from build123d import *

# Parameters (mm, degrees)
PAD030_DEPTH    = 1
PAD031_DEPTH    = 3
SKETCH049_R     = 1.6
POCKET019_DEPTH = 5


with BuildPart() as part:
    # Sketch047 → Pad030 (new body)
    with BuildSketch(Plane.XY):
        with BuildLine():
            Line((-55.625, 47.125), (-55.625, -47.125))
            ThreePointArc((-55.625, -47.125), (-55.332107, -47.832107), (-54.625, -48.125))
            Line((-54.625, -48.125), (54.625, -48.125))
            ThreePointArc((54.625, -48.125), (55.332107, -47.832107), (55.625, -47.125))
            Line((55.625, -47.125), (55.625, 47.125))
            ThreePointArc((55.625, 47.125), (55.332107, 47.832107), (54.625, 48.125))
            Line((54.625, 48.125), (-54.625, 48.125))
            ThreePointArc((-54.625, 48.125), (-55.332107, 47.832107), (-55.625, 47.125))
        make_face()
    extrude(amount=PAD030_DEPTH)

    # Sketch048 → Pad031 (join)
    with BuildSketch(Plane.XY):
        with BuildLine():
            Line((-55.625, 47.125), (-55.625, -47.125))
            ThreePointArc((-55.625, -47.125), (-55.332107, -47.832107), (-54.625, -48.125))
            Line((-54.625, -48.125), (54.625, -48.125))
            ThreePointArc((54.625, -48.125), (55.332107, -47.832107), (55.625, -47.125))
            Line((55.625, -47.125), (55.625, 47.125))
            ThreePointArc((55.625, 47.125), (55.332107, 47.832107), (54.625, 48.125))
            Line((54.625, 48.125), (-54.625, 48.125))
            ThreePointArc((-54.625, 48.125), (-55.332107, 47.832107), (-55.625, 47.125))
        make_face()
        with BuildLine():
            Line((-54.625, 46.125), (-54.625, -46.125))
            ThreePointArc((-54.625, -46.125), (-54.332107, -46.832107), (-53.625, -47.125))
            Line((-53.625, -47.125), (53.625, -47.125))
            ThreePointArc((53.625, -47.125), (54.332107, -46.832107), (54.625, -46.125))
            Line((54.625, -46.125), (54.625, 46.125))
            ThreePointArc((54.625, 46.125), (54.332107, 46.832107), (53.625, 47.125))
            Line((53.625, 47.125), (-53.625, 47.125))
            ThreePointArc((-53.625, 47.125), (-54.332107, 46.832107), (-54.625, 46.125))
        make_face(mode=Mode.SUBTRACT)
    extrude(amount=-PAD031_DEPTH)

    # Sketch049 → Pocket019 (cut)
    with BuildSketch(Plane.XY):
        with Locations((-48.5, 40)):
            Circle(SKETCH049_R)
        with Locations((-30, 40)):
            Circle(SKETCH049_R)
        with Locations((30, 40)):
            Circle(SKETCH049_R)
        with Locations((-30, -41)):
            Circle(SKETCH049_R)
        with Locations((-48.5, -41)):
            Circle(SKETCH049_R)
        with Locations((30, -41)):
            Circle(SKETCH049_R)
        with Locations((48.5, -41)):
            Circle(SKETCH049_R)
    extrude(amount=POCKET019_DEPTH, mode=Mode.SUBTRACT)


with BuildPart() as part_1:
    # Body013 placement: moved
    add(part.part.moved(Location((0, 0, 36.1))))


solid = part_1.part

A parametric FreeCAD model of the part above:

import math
import FreeCAD as App
import Part
import Sketcher
from FreeCAD import Vector

doc = App.newDocument("Part")
body = doc.addObject("PartDesign::Body", "Body")

# Sketch on XY plane
sketch1 = body.newObject("Sketcher::SketchObject", "Sketch")
sketch1.AttachmentSupport = (doc.getObject("XY_Plane"), [""])
sketch1.MapMode = "FlatFace"
sketch1.addGeometry([
    Part.LineSegment(Vector(-55.6, 47.1, 0), Vector(-55.6, -47.1, 0)),  # 0
    Part.ArcOfCircle(Part.Circle(Vector(-54.6, -47.1, 0), Vector(0, 0, 1), 1), math.radians(180), math.radians(270)),  # 1
    Part.LineSegment(Vector(-54.6, -48.1, 0), Vector(54.6, -48.1, 0)),  # 2
    Part.ArcOfCircle(Part.Circle(Vector(54.6, -47.1, 0), Vector(0, 0, 1), 1), math.radians(-90), math.radians(0)),  # 3
    Part.LineSegment(Vector(55.6, -47.1, 0), Vector(55.6, 47.1, 0)),  # 4
    Part.ArcOfCircle(Part.Circle(Vector(54.6, 47.1, 0), Vector(0, 0, 1), 1), math.radians(0), math.radians(90)),  # 5
    Part.LineSegment(Vector(54.6, 48.1, 0), Vector(-54.6, 48.1, 0)),  # 6
    Part.ArcOfCircle(Part.Circle(Vector(-54.6, 47.1, 0), Vector(0, 0, 1), 1), math.radians(90), math.radians(180)),  # 7
], False)
sketch1.addConstraint([
    Sketcher.Constraint("Tangent", 0, 2, 1, 1),
    Sketcher.Constraint("Tangent", 1, 2, 2, 1),
    Sketcher.Constraint("Tangent", 2, 2, 3, 1),
    Sketcher.Constraint("Tangent", 3, 2, 4, 1),
    Sketcher.Constraint("Tangent", 4, 2, 5, 1),
    Sketcher.Constraint("Tangent", 5, 2, 6, 1),
    Sketcher.Constraint("Tangent", 6, 2, 7, 1),
    Sketcher.Constraint("Tangent", 7, 2, 0, 1),
    Sketcher.Constraint("Vertical", 0),
    Sketcher.Constraint("Horizontal", 2),
    Sketcher.Constraint("Vertical", 4),
    Sketcher.Constraint("Horizontal", 6),
    Sketcher.Constraint("Equal", 1, 3),
    Sketcher.Constraint("Equal", 3, 5),
    Sketcher.Constraint("Equal", 5, 7),
    Sketcher.Constraint("Symmetric", 1, 3, 5, 3, -1, 1),
    Sketcher.Constraint("Radius", 1, 0.999999),
    Sketcher.Constraint("DistanceX", 2, 1, 2, 2, 109.25),
    Sketcher.Constraint("DistanceY", 0, 2, 0, 1, 94.25),
])
pad1 = body.newObject("PartDesign::Pad", "Pad")
pad1.Profile = sketch1
pad1.Length = 1

# Sketch on XY plane
sketch2 = body.newObject("Sketcher::SketchObject", "Sketch001")
sketch2.AttachmentSupport = (doc.getObject("XY_Plane"), [""])
sketch2.MapMode = "FlatFace"
sketch2.addGeometry([
    Part.LineSegment(Vector(-55.6, 47.1, 0), Vector(-55.6, -47.1, 0)),  # 0
    Part.ArcOfCircle(Part.Circle(Vector(-54.6, -47.1, 0), Vector(0, 0, 1), 1), math.radians(180), math.radians(270)),  # 1
    Part.LineSegment(Vector(-54.6, -48.1, 0), Vector(54.6, -48.1, 0)),  # 2
    Part.ArcOfCircle(Part.Circle(Vector(54.6, -47.1, 0), Vector(0, 0, 1), 1), math.radians(-90), math.radians(0)),  # 3
    Part.LineSegment(Vector(55.6, -47.1, 0), Vector(55.6, 47.1, 0)),  # 4
    Part.ArcOfCircle(Part.Circle(Vector(54.6, 47.1, 0), Vector(0, 0, 1), 1), math.radians(0), math.radians(90)),  # 5
    Part.LineSegment(Vector(54.6, 48.1, 0), Vector(-54.6, 48.1, 0)),  # 6
    Part.ArcOfCircle(Part.Circle(Vector(-54.6, 47.1, 0), Vector(0, 0, 1), 1), math.radians(90), math.radians(180)),  # 7
    Part.LineSegment(Vector(-54.6, -46.1, 0), Vector(-54.6, 46.1, 0)),  # 8
    Part.ArcOfCircle(Part.Circle(Vector(-53.6, 46.1, 0), Vector(0, 0, 1), 1), math.radians(90), math.radians(180)),  # 9
    Part.LineSegment(Vector(-53.6, 47.1, 0), Vector(53.6, 47.1, 0)),  # 10
    Part.ArcOfCircle(Part.Circle(Vector(53.6, 46.1, 0), Vector(0, 0, 1), 1), math.radians(0), math.radians(90)),  # 11
    Part.LineSegment(Vector(54.6, 46.1, 0), Vector(54.6, -46.1, 0)),  # 12
    Part.ArcOfCircle(Part.Circle(Vector(53.6, -46.1, 0), Vector(0, 0, 1), 1), math.radians(-90), math.radians(0)),  # 13
    Part.LineSegment(Vector(53.6, -47.1, 0), Vector(-53.6, -47.1, 0)),  # 14
    Part.ArcOfCircle(Part.Circle(Vector(-53.6, -46.1, 0), Vector(0, 0, 1), 1), math.radians(180), math.radians(270)),  # 15
], False)
sketch2.addConstraint([
    Sketcher.Constraint("Tangent", 0, 2, 1, 1),
    Sketcher.Constraint("Tangent", 1, 2, 2, 1),
    Sketcher.Constraint("Tangent", 2, 2, 3, 1),
    Sketcher.Constraint("Tangent", 3, 2, 4, 1),
    Sketcher.Constraint("Tangent", 4, 2, 5, 1),
    Sketcher.Constraint("Tangent", 5, 2, 6, 1),
    Sketcher.Constraint("Tangent", 6, 2, 7, 1),
    Sketcher.Constraint("Tangent", 7, 2, 0, 1),
    Sketcher.Constraint("Tangent", 8, 2, 9, 2),
    Sketcher.Constraint("Tangent", 9, 1, 10, 1),
    Sketcher.Constraint("Tangent", 10, 2, 11, 2),
    Sketcher.Constraint("Tangent", 11, 1, 12, 1),
    Sketcher.Constraint("Tangent", 12, 2, 13, 2),
    Sketcher.Constraint("Tangent", 13, 1, 14, 1),
    Sketcher.Constraint("Tangent", 14, 2, 15, 2),
    Sketcher.Constraint("Tangent", 15, 1, 8, 1),
    Sketcher.Constraint("Vertical", 0),
    Sketcher.Constraint("Horizontal", 2),
    Sketcher.Constraint("Vertical", 4),
    Sketcher.Constraint("Horizontal", 6),
    Sketcher.Constraint("Vertical", 8),
    Sketcher.Constraint("Horizontal", 10),
    Sketcher.Constraint("Vertical", 12),
    Sketcher.Constraint("Horizontal", 14),
    Sketcher.Constraint("Equal", 1, 3),
    Sketcher.Constraint("Equal", 3, 5),
    Sketcher.Constraint("Equal", 5, 7),
    Sketcher.Constraint("Equal", 7, 9),
    Sketcher.Constraint("Equal", 9, 11),
    Sketcher.Constraint("Equal", 11, 13),
    Sketcher.Constraint("Equal", 13, 15),
    Sketcher.Constraint("Symmetric", 1, 3, 5, 3, -1, 1),
    Sketcher.Constraint("Symmetric", 9, 3, 13, 3, -1, 1),
    Sketcher.Constraint("Horizontal", 7, 2, 9, 1),
    Sketcher.Constraint("Vertical", 6, 2, 8, 2),
    Sketcher.Constraint("Radius", 1, 0.999999),
    Sketcher.Constraint("DistanceX", 2, 1, 2, 2, 109.25),
    Sketcher.Constraint("DistanceY", 0, 2, 0, 1, 94.25),
])
pad2 = body.newObject("PartDesign::Pad", "Pad001")
pad2.Profile = sketch2
pad2.Length = 3
pad2.Reversed = True

# Sketch on XY plane
sketch3 = body.newObject("Sketcher::SketchObject", "Sketch002")
sketch3.AttachmentSupport = (doc.getObject("XY_Plane"), [""])
sketch3.MapMode = "FlatFace"
sketch3.addGeometry([
    Part.Circle(Vector(-48.5, 40, 0), Vector(0, 0, 1), 1.6),  # 0
    Part.Circle(Vector(-30, 40, 0), Vector(0, 0, 1), 1.6),  # 1
    Part.Circle(Vector(30, 40, 0), Vector(0, 0, 1), 1.6),  # 2
    Part.Circle(Vector(-30, -41, 0), Vector(0, 0, 1), 1.6),  # 3
    Part.Circle(Vector(-48.5, -41, 0), Vector(0, 0, 1), 1.6),  # 4
    Part.Circle(Vector(30, -41, 0), Vector(0, 0, 1), 1.6),  # 5
    Part.Circle(Vector(48.5, -41, 0), Vector(0, 0, 1), 1.6),  # 6
], False)
sketch3.addConstraint([
    Sketcher.Constraint("Equal", 0, 1),
    Sketcher.Constraint("Equal", 1, 2),
    Sketcher.Constraint("Equal", 2, 3),
    Sketcher.Constraint("Equal", 3, 4),
    Sketcher.Constraint("Equal", 4, 5),
    Sketcher.Constraint("Equal", 5, 6),
    Sketcher.Constraint("Symmetric", 1, 3, 2, 3, -2),
    Sketcher.Constraint("Symmetric", 3, 3, 5, 3, -2),
    Sketcher.Constraint("Symmetric", 4, 3, 6, 3, -2),
    Sketcher.Constraint("Horizontal", 0, 3, 1, 3),
    Sketcher.Constraint("Horizontal", 3, 3, 4, 3),
    Sketcher.Constraint("Vertical", 1, 3, 3, 3),
    Sketcher.Constraint("Vertical", 0, 3, 4, 3),
    Sketcher.Constraint("Diameter", 0, 3.2),
    Sketcher.Constraint("DistanceY", -1, 1, 0, 3, 40.0),
    Sketcher.Constraint("DistanceX", 1, 3, -1, 1, 30.0),
    Sketcher.Constraint("DistanceY", 3, 3, -1, 1, 41.0),
    Sketcher.Constraint("DistanceX", 4, 3, 6, 3, 97.0),
])
pocket1 = body.newObject("PartDesign::Pocket", "Pocket")
pocket1.Profile = sketch3
pocket1.Length = 5
pocket1.Reversed = True
body2 = doc.addObject("PartDesign::Body", "Body001")
doc.recompute()

body.Placement = App.Placement(Vector(0, 0, 36.1), App.Rotation(Vector(0, 0, 1), 0))
boolean = body2.newObject("PartDesign::Boolean", "Boolean")
boolean.Type = "Fuse"
boolean.addObjects([body])

doc.recompute()
